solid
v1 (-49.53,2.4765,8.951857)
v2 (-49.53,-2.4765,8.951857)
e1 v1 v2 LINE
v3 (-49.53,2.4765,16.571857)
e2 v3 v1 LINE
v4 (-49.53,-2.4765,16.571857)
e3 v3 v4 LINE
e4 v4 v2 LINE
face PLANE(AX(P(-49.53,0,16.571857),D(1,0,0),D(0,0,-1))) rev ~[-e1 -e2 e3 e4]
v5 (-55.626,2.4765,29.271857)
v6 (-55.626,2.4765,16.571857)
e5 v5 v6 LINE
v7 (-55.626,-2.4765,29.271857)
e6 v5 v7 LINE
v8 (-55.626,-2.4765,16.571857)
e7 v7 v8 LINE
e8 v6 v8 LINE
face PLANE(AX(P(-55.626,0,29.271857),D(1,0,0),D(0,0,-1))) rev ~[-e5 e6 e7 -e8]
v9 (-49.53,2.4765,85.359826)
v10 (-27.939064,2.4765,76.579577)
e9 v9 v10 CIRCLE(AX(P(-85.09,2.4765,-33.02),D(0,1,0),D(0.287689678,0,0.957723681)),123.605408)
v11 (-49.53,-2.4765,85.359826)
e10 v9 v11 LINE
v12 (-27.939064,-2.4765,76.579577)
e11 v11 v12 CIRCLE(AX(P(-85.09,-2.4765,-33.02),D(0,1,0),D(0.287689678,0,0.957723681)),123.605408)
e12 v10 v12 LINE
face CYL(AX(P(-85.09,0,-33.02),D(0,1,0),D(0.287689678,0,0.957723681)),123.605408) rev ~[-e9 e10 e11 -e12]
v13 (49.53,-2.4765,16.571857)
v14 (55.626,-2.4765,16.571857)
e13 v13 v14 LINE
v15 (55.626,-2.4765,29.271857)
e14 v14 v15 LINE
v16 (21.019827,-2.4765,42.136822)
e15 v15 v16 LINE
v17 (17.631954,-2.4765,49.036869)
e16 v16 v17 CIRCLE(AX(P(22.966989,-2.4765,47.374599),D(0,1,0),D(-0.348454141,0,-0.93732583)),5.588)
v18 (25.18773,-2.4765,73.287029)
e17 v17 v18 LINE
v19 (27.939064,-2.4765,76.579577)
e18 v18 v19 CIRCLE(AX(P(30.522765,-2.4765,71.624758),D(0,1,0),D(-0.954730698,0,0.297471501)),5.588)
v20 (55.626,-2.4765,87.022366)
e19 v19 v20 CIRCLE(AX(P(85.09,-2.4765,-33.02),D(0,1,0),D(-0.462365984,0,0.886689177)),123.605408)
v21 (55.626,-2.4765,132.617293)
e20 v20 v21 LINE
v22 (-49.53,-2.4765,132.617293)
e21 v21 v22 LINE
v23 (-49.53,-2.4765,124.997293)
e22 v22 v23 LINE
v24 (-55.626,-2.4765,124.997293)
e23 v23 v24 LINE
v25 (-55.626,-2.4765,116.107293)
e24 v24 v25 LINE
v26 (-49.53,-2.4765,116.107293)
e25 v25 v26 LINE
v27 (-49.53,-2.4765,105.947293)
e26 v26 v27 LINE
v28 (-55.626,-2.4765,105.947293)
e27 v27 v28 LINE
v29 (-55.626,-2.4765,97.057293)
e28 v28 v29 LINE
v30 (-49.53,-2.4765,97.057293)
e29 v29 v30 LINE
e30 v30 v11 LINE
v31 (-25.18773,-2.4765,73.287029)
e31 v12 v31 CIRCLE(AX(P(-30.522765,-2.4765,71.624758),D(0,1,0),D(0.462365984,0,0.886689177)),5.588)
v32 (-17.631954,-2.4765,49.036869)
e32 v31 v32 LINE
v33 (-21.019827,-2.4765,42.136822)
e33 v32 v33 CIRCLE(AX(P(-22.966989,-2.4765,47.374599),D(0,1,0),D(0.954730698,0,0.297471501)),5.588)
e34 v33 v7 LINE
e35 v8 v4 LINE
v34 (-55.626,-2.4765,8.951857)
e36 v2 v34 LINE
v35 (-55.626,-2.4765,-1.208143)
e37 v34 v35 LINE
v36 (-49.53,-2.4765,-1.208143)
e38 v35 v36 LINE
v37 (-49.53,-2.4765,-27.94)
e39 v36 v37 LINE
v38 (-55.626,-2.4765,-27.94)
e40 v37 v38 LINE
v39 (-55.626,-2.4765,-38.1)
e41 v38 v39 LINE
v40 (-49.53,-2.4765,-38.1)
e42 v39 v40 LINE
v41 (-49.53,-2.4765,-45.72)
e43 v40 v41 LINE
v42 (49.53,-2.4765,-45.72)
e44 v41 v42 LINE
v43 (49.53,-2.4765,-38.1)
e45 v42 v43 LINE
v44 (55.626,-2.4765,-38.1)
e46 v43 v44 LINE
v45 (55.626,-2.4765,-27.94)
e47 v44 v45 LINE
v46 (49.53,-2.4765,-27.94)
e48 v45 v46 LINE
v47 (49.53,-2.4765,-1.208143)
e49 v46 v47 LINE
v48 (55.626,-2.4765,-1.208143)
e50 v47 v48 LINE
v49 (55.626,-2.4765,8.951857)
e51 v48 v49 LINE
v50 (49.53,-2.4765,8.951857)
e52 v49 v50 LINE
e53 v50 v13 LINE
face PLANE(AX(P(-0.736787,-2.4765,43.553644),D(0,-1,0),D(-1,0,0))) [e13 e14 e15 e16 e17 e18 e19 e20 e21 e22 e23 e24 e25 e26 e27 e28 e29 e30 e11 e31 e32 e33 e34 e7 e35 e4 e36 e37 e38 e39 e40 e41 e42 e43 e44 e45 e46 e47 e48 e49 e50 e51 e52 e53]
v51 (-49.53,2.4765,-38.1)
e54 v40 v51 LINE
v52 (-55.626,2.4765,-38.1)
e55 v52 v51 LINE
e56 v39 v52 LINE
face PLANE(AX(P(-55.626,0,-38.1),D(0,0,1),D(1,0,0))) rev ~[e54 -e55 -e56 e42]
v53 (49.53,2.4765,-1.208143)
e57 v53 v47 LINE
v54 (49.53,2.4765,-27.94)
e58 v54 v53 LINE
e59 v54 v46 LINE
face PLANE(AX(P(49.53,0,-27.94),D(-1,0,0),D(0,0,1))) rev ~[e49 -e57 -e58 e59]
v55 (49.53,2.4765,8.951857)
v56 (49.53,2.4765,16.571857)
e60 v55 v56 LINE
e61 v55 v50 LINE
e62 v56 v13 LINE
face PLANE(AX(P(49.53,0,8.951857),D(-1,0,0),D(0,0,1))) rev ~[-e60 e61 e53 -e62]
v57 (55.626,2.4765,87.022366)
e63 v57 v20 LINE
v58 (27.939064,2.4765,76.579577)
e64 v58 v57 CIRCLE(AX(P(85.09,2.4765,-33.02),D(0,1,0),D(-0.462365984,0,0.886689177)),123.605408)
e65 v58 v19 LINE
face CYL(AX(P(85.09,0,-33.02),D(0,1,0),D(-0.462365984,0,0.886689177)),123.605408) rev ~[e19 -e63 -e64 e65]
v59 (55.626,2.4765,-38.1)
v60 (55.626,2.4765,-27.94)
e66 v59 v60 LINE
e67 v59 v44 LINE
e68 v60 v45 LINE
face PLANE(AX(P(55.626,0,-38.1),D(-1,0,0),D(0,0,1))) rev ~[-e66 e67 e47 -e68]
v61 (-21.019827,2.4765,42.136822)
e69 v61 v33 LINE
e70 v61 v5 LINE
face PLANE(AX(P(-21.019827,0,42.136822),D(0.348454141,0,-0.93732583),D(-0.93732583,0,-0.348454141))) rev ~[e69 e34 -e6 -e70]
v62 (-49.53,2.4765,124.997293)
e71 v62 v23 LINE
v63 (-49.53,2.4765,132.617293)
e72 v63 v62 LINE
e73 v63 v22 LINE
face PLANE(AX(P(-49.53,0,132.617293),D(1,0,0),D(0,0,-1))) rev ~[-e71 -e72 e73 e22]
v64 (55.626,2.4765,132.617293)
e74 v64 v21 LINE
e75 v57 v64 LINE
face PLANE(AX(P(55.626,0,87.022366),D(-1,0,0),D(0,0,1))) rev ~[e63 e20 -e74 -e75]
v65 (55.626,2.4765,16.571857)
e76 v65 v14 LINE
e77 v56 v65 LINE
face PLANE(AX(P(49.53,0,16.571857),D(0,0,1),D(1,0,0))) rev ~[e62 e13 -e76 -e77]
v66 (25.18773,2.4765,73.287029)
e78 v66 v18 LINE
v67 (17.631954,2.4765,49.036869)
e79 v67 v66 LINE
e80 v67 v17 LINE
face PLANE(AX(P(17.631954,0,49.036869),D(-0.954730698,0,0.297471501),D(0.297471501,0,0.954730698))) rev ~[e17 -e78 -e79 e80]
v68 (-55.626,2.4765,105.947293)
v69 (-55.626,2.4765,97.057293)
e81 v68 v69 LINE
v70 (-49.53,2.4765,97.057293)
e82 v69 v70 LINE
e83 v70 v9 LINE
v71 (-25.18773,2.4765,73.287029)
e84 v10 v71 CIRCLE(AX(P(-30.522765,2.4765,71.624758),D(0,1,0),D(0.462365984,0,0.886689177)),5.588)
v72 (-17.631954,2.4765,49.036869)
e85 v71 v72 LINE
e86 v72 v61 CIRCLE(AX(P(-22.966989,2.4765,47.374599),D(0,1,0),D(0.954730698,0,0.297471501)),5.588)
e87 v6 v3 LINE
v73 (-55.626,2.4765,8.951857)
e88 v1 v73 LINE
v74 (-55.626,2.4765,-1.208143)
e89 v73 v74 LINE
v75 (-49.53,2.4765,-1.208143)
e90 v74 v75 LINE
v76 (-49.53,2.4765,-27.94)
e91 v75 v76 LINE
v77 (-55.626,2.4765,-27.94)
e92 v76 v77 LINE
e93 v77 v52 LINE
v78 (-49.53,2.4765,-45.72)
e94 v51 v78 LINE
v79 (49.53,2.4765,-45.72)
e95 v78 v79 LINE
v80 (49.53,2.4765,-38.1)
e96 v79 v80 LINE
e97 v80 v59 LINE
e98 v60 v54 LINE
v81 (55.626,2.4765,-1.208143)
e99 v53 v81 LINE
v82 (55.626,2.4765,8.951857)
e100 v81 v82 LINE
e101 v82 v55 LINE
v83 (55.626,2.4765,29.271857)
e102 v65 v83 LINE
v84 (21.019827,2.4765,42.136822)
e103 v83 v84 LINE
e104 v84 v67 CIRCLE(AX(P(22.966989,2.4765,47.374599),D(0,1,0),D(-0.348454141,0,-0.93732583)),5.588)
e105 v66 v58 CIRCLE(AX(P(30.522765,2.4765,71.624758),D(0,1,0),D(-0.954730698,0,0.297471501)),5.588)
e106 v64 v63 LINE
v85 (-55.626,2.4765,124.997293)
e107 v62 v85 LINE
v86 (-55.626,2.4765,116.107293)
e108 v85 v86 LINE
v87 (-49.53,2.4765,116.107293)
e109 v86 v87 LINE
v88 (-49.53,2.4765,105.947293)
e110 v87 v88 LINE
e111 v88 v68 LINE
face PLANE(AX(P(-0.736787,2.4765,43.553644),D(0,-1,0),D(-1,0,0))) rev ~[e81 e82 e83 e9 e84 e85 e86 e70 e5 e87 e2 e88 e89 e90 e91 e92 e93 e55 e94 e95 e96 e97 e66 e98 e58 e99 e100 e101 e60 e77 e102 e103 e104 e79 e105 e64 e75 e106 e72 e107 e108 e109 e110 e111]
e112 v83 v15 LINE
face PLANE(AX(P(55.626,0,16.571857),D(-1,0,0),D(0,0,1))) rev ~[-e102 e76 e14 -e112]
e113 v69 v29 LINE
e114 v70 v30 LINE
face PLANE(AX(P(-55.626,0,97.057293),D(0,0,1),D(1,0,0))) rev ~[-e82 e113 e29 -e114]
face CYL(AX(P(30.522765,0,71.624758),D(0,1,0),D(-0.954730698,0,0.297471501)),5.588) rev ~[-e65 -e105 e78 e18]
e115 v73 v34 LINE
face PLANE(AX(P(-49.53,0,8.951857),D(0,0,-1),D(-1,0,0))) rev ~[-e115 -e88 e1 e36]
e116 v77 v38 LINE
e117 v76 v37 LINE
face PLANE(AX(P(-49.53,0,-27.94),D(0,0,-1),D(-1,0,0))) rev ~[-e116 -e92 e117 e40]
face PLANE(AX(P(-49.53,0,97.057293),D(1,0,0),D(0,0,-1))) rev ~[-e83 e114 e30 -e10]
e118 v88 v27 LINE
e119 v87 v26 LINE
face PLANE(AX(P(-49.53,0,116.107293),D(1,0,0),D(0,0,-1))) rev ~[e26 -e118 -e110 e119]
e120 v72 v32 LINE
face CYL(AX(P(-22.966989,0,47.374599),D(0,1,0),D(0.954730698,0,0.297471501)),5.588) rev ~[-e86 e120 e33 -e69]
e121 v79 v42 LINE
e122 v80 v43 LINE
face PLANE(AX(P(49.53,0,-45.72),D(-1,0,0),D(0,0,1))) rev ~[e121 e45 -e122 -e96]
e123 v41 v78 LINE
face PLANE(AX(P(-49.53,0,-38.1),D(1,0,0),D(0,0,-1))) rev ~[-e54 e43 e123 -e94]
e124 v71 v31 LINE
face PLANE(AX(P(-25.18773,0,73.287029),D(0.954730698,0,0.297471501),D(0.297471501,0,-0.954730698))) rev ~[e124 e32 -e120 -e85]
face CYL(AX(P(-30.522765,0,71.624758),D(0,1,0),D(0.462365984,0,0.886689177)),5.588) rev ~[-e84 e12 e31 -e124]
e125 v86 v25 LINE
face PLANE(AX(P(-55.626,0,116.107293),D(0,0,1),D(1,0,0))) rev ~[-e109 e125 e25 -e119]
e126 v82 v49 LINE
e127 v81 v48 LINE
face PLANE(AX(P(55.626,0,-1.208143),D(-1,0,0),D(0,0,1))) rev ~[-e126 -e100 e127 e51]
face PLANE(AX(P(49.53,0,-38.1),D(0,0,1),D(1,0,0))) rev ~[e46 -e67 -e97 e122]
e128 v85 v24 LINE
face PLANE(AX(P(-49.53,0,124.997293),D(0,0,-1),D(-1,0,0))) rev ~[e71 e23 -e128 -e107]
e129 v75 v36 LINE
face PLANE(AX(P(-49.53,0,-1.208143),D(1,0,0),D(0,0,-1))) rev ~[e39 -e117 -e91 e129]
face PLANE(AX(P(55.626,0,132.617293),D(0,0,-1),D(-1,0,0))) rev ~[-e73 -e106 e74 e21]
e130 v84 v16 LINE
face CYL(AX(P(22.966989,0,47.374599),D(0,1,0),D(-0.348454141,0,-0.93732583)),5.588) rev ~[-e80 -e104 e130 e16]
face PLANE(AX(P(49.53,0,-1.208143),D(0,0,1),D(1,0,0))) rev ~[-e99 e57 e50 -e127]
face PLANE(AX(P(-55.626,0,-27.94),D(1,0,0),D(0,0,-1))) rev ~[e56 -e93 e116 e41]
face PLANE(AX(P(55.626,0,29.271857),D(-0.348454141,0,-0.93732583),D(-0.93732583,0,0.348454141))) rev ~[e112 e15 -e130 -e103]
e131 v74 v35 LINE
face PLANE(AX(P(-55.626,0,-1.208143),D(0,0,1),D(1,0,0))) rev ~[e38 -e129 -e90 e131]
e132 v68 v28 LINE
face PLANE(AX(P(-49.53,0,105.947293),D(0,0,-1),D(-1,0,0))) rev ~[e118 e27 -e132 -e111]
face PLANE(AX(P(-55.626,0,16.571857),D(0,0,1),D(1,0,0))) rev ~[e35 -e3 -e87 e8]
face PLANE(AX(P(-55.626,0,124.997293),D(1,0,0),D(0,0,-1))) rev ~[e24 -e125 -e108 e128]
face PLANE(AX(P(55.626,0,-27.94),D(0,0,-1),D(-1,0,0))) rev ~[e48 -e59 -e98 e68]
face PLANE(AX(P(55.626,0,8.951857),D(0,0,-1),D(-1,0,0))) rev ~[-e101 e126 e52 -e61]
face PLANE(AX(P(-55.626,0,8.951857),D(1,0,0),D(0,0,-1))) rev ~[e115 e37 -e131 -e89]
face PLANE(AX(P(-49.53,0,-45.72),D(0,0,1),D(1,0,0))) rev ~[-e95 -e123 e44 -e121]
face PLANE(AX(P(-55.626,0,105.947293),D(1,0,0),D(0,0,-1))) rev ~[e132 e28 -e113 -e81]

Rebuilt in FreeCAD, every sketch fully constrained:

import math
import FreeCAD as App
import Part
import Sketcher

V = App.Vector
Q = App.Units.Quantity

doc = App.newDocument("Part")
body = doc.addObject("PartDesign::Body", "Body")

sketch1 = body.newObject("Sketcher::SketchObject", "Sketch")
sketch1.AttachmentSupport = (doc.getObject("XZ_Plane"), [""])
sketch1.MapMode = "FlatFace"
sketch1.addGeometry([
    Part.LineSegment(V(49.53, -45.72, 0), V(-49.53, -45.72, 0)),
    Part.LineSegment(V(-49.53, -45.72, 0), V(-49.53, -38.1, 0)),
    Part.LineSegment(V(-49.53, -38.1, 0), V(-55.626, -38.1, 0)),
    Part.LineSegment(V(-55.626, -38.1, 0), V(-55.626, -27.94, 0)),
    Part.LineSegment(V(-55.626, -27.94, 0), V(-49.53, -27.94, 0)),
    Part.LineSegment(V(-49.53, -27.94, 0), V(-49.53, -1.208143, 0)),
    Part.LineSegment(V(-49.53, -1.208143, 0), V(-55.626, -1.208143, 0)),
    Part.LineSegment(V(-55.626, -1.208143, 0), V(-55.626, 8.951857, 0)),
    Part.LineSegment(V(-55.626, 8.951857, 0), V(-49.53, 8.951857, 0)),
    Part.LineSegment(V(-49.53, 8.951857, 0), V(-49.53, 16.571857, 0)),
    Part.LineSegment(V(-49.53, 16.571857, 0), V(-55.626, 16.571857, 0)),
    Part.LineSegment(V(-55.626, 16.571857, 0), V(-55.626, 29.271857, 0)),
    Part.LineSegment(V(-55.626, 29.271857, 0), V(-21.019827, 42.136822, 0)),
    Part.ArcOfCircle(Part.Circle(V(-22.966989, 47.374599, 0), V(0, 0, 1), 5.588), math.radians(-69.607207), math.radians(17.305799)),
    Part.LineSegment(V(-17.631954, 49.036869, 0), V(-25.18773, 73.287029, 0)),
    Part.ArcOfCircle(Part.Circle(V(-30.522765, 71.624758, 0), V(0, 0, 1), 5.588), math.radians(17.305799), math.radians(62.460114)),
    Part.ArcOfCircle(Part.Circle(V(-85.09, -33.02, 0), V(0, 0, 1), 123.605408), math.radians(62.460114), math.radians(73.280309)),
    Part.LineSegment(V(-49.53, 85.359826, 0), V(-49.53, 97.057293, 0)),
    Part.LineSegment(V(-49.53, 97.057293, 0), V(-55.626, 97.057293, 0)),
    Part.LineSegment(V(-55.626, 97.057293, 0), V(-55.626, 105.947293, 0)),
    Part.LineSegment(V(-55.626, 105.947293, 0), V(-49.53, 105.947293, 0)),
    Part.LineSegment(V(-49.53, 105.947293, 0), V(-49.53, 116.107293, 0)),
    Part.LineSegment(V(-49.53, 116.107293, 0), V(-55.626, 116.107293, 0)),
    Part.LineSegment(V(-55.626, 116.107293, 0), V(-55.626, 124.997293, 0)),
    Part.LineSegment(V(-55.626, 124.997293, 0), V(-49.53, 124.997293, 0)),
    Part.LineSegment(V(-49.53, 124.997293, 0), V(-49.53, 132.617293, 0)),
    Part.LineSegment(V(-49.53, 132.617293, 0), V(55.626, 132.617293, 0)),
    Part.LineSegment(V(55.626, 132.617293, 0), V(55.626, 87.022366, 0)),
    Part.ArcOfCircle(Part.Circle(V(85.09, -33.02, 0), V(0, 0, 1), 123.605408), math.radians(103.790442), math.radians(117.539886)),
    Part.ArcOfCircle(Part.Circle(V(30.522765, 71.624758, 0), V(0, 0, 1), 5.588), math.radians(117.539886), math.radians(162.694201)),
    Part.LineSegment(V(25.18773, 73.287029, 0), V(17.631954, 49.036869, 0)),
    Part.ArcOfCircle(Part.Circle(V(22.966989, 47.374599, 0), V(0, 0, 1), 5.588), math.radians(162.694201), math.radians(249.607207)),
    Part.LineSegment(V(21.019827, 42.136822, 0), V(55.626, 29.271857, 0)),
    Part.LineSegment(V(55.626, 29.271857, 0), V(55.626, 16.571857, 0)),
    Part.LineSegment(V(55.626, 16.571857, 0), V(49.53, 16.571857, 0)),
    Part.LineSegment(V(49.53, 16.571857, 0), V(49.53, 8.951857, 0)),
    Part.LineSegment(V(49.53, 8.951857, 0), V(55.626, 8.951857, 0)),
    Part.LineSegment(V(55.626, 8.951857, 0), V(55.626, -1.208143, 0)),
    Part.LineSegment(V(55.626, -1.208143, 0), V(49.53, -1.208143, 0)),
    Part.LineSegment(V(49.53, -1.208143, 0), V(49.53, -27.94, 0)),
    Part.LineSegment(V(49.53, -27.94, 0), V(55.626, -27.94, 0)),
    Part.LineSegment(V(55.626, -27.94, 0), V(55.626, -38.1, 0)),
    Part.LineSegment(V(55.626, -38.1, 0), V(49.53, -38.1, 0)),
    Part.LineSegment(V(49.53, -38.1, 0), V(49.53, -45.72, 0)),
], False)
sketch1.addConstraint([
    Sketcher.Constraint("Coincident", 0, 2, 1, 1),
    Sketcher.Constraint("Coincident", 1, 2, 2, 1),
    Sketcher.Constraint("Coincident", 2, 2, 3, 1),
    Sketcher.Constraint("Coincident", 3, 2, 4, 1),
    Sketcher.Constraint("Coincident", 4, 2, 5, 1),
    Sketcher.Constraint("Coincident", 5, 2, 6, 1),
    Sketcher.Constraint("Coincident", 6, 2, 7, 1),
    Sketcher.Constraint("Coincident", 7, 2, 8, 1),
    Sketcher.Constraint("Coincident", 8, 2, 9, 1),
    Sketcher.Constraint("Coincident", 9, 2, 10, 1),
    Sketcher.Constraint("Coincident", 10, 2, 11, 1),
    Sketcher.Constraint("Coincident", 11, 2, 12, 1),
    Sketcher.Constraint("Tangent", 12, 2, 13, 1),
    Sketcher.Constraint("Tangent", 13, 2, 14, 1),
    Sketcher.Constraint("Tangent", 14, 2, 15, 1),
    Sketcher.Constraint("Tangent", 15, 2, 16, 1),
    Sketcher.Constraint("Coincident", 16, 2, 17, 1),
    Sketcher.Constraint("Coincident", 17, 2, 18, 1),
    Sketcher.Constraint("Coincident", 18, 2, 19, 1),
    Sketcher.Constraint("Coincident", 19, 2, 20, 1),
    Sketcher.Constraint("Coincident", 20, 2, 21, 1),
    Sketcher.Constraint("Coincident", 21, 2, 22, 1),
    Sketcher.Constraint("Coincident", 22, 2, 23, 1),
    Sketcher.Constraint("Coincident", 23, 2, 24, 1),
    Sketcher.Constraint("Coincident", 24, 2, 25, 1),
    Sketcher.Constraint("Coincident", 25, 2, 26, 1),
    Sketcher.Constraint("Coincident", 26, 2, 27, 1),
    Sketcher.Constraint("Coincident", 27, 2, 28, 1),
    Sketcher.Constraint("Tangent", 28, 2, 29, 1),
    Sketcher.Constraint("Tangent", 29, 2, 30, 1),
    Sketcher.Constraint("Tangent", 30, 2, 31, 1),
    Sketcher.Constraint("Tangent", 31, 2, 32, 1),
    Sketcher.Constraint("Coincident", 32, 2, 33, 1),
    Sketcher.Constraint("Coincident", 33, 2, 34, 1),
    Sketcher.Constraint("Coincident", 34, 2, 35, 1),
    Sketcher.Constraint("Coincident", 35, 2, 36, 1),
    Sketcher.Constraint("Coincident", 36, 2, 37, 1),
    Sketcher.Constraint("Coincident", 37, 2, 38, 1),
    Sketcher.Constraint("Coincident", 38, 2, 39, 1),
    Sketcher.Constraint("Coincident", 39, 2, 40, 1),
    Sketcher.Constraint("Coincident", 40, 2, 41, 1),
    Sketcher.Constraint("Coincident", 41, 2, 42, 1),
    Sketcher.Constraint("Coincident", 42, 2, 43, 1),
    Sketcher.Constraint("Coincident", 43, 2, 0, 1),
    Sketcher.Constraint("Horizontal", 0),
    Sketcher.Constraint("Vertical", 1),
    Sketcher.Constraint("Horizontal", 2),
    Sketcher.Constraint("Vertical", 3),
    Sketcher.Constraint("Horizontal", 4),
    Sketcher.Constraint("Vertical", 5),
    Sketcher.Constraint("Horizontal", 6),
    Sketcher.Constraint("Vertical", 7),
    Sketcher.Constraint("Horizontal", 8),
    Sketcher.Constraint("Vertical", 9),
    Sketcher.Constraint("Horizontal", 10),
    Sketcher.Constraint("Vertical", 11),
    Sketcher.Constraint("Vertical", 17),
    Sketcher.Constraint("Horizontal", 18),
    Sketcher.Constraint("Vertical", 19),
    Sketcher.Constraint("Horizontal", 20),
    Sketcher.Constraint("Vertical", 21),
    Sketcher.Constraint("Horizontal", 22),
    Sketcher.Constraint("Vertical", 23),
    Sketcher.Constraint("Horizontal", 24),
    Sketcher.Constraint("Vertical", 25),
    Sketcher.Constraint("Horizontal", 26),
    Sketcher.Constraint("Vertical", 27),
    Sketcher.Constraint("Vertical", 33),
    Sketcher.Constraint("Horizontal", 34),
    Sketcher.Constraint("Vertical", 35),
    Sketcher.Constraint("Horizontal", 36),
    Sketcher.Constraint("Vertical", 37),
    Sketcher.Constraint("Horizontal", 38),
    Sketcher.Constraint("Vertical", 39),
    Sketcher.Constraint("Horizontal", 40),
    Sketcher.Constraint("Vertical", 41),
    Sketcher.Constraint("Horizontal", 42),
    Sketcher.Constraint("Vertical", 43),
    Sketcher.Constraint("Equal", 13, 15),
    Sketcher.Constraint("Equal", 16, 28),
    Sketcher.Constraint("Equal", 15, 29),
    Sketcher.Constraint("Equal", 29, 31),
    Sketcher.Constraint("Symmetric", 16, 3, 28, 3, -2),
    Sketcher.Constraint("Symmetric", 13, 3, 31, 3, -2),
    Sketcher.Constraint("Symmetric", 11, 2, 32, 2, -2),
    Sketcher.Constraint("Symmetric", 9, 2, 34, 2, -2),
    Sketcher.Constraint("Symmetric", 7, 2, 36, 2, -2),
    Sketcher.Constraint("Symmetric", 5, 2, 38, 2, -2),
    Sketcher.Constraint("Symmetric", 3, 2, 40, 2, -2),
    Sketcher.Constraint("Symmetric", 1, 2, 42, 2, -2),
    Sketcher.Constraint("Horizontal", 15, 3, 29, 3),
    Sketcher.Constraint("Vertical", 1, 2, 4, 2),
    Sketcher.Constraint("Vertical", 3, 2, 6, 2),
    Sketcher.Constraint("Vertical", 5, 2, 8, 2),
    Sketcher.Constraint("Vertical", 7, 2, 10, 2),
    Sketcher.Constraint("Vertical", 9, 2, 16, 2),
    Sketcher.Constraint("Vertical", 11, 2, 18, 2),
    Sketcher.Constraint("Vertical", 17, 2, 20, 2),
    Sketcher.Constraint("Vertical", 19, 2, 22, 2),
    Sketcher.Constraint("Vertical", 21, 2, 24, 2),
    Sketcher.Constraint("Vertical", 27, 2, 32, 2),
    Sketcher.Constraint("Equal", 3, 7),
    Sketcher.Constraint("Equal", 1, 9),
    Sketcher.Constraint("Equal", 7, 21),
    Sketcher.Constraint("Equal", 19, 23),
    Sketcher.Constraint("Equal", 9, 25),
    Sketcher.Constraint("Radius", 13, Q("0.22 in")),
    Sketcher.Constraint("Distance", 14, Q("1 in")),
    Sketcher.Constraint("DistanceX", 0, 2, 0, 1, Q("3.9 in")),
    Sketcher.Constraint("DistanceY", 1, 1, 1, 2, Q("0.3 in")),
    Sketcher.Constraint("DistanceY", 3, 1, 3, 2, Q("0.4 in")),
    Sketcher.Constraint("DistanceY", 11, 1, 11, 2, Q("0.5 in")),
    Sketcher.Constraint("DistanceX", 2, 2, 2, 1, Q("0.24 in")),
    Sketcher.Constraint("DistanceY", 19, 1, 19, 2, Q("0.35 in")),
    Sketcher.Constraint("DistanceY", 16, 3, -1, 1, Q("1.3 in")),
    Sketcher.Constraint("DistanceY", 0, 2, -1, 1, Q("1.8 in")),
    Sketcher.Constraint("DistanceX", 16, 3, 28, 3, Q("6.7 in")),
    Sketcher.Constraint("Radius", 16, 123.605408),
    Sketcher.Constraint("DistanceY", -1, 1, 13, 3, 47.374599),
    Sketcher.Constraint("DistanceY", 32, 2, 29, 3, 42.352902),
    Sketcher.Constraint("Distance", 12, 36.92011),
    Sketcher.Constraint("DistanceY", 17, 1, 17, 2, 11.697467),
])
pad1 = body.newObject("PartDesign::Pad", "Pad")
pad1.Profile = sketch1
pad1.Length = Q("0.195 in")
pad1.Midplane = True

doc.recompute()
